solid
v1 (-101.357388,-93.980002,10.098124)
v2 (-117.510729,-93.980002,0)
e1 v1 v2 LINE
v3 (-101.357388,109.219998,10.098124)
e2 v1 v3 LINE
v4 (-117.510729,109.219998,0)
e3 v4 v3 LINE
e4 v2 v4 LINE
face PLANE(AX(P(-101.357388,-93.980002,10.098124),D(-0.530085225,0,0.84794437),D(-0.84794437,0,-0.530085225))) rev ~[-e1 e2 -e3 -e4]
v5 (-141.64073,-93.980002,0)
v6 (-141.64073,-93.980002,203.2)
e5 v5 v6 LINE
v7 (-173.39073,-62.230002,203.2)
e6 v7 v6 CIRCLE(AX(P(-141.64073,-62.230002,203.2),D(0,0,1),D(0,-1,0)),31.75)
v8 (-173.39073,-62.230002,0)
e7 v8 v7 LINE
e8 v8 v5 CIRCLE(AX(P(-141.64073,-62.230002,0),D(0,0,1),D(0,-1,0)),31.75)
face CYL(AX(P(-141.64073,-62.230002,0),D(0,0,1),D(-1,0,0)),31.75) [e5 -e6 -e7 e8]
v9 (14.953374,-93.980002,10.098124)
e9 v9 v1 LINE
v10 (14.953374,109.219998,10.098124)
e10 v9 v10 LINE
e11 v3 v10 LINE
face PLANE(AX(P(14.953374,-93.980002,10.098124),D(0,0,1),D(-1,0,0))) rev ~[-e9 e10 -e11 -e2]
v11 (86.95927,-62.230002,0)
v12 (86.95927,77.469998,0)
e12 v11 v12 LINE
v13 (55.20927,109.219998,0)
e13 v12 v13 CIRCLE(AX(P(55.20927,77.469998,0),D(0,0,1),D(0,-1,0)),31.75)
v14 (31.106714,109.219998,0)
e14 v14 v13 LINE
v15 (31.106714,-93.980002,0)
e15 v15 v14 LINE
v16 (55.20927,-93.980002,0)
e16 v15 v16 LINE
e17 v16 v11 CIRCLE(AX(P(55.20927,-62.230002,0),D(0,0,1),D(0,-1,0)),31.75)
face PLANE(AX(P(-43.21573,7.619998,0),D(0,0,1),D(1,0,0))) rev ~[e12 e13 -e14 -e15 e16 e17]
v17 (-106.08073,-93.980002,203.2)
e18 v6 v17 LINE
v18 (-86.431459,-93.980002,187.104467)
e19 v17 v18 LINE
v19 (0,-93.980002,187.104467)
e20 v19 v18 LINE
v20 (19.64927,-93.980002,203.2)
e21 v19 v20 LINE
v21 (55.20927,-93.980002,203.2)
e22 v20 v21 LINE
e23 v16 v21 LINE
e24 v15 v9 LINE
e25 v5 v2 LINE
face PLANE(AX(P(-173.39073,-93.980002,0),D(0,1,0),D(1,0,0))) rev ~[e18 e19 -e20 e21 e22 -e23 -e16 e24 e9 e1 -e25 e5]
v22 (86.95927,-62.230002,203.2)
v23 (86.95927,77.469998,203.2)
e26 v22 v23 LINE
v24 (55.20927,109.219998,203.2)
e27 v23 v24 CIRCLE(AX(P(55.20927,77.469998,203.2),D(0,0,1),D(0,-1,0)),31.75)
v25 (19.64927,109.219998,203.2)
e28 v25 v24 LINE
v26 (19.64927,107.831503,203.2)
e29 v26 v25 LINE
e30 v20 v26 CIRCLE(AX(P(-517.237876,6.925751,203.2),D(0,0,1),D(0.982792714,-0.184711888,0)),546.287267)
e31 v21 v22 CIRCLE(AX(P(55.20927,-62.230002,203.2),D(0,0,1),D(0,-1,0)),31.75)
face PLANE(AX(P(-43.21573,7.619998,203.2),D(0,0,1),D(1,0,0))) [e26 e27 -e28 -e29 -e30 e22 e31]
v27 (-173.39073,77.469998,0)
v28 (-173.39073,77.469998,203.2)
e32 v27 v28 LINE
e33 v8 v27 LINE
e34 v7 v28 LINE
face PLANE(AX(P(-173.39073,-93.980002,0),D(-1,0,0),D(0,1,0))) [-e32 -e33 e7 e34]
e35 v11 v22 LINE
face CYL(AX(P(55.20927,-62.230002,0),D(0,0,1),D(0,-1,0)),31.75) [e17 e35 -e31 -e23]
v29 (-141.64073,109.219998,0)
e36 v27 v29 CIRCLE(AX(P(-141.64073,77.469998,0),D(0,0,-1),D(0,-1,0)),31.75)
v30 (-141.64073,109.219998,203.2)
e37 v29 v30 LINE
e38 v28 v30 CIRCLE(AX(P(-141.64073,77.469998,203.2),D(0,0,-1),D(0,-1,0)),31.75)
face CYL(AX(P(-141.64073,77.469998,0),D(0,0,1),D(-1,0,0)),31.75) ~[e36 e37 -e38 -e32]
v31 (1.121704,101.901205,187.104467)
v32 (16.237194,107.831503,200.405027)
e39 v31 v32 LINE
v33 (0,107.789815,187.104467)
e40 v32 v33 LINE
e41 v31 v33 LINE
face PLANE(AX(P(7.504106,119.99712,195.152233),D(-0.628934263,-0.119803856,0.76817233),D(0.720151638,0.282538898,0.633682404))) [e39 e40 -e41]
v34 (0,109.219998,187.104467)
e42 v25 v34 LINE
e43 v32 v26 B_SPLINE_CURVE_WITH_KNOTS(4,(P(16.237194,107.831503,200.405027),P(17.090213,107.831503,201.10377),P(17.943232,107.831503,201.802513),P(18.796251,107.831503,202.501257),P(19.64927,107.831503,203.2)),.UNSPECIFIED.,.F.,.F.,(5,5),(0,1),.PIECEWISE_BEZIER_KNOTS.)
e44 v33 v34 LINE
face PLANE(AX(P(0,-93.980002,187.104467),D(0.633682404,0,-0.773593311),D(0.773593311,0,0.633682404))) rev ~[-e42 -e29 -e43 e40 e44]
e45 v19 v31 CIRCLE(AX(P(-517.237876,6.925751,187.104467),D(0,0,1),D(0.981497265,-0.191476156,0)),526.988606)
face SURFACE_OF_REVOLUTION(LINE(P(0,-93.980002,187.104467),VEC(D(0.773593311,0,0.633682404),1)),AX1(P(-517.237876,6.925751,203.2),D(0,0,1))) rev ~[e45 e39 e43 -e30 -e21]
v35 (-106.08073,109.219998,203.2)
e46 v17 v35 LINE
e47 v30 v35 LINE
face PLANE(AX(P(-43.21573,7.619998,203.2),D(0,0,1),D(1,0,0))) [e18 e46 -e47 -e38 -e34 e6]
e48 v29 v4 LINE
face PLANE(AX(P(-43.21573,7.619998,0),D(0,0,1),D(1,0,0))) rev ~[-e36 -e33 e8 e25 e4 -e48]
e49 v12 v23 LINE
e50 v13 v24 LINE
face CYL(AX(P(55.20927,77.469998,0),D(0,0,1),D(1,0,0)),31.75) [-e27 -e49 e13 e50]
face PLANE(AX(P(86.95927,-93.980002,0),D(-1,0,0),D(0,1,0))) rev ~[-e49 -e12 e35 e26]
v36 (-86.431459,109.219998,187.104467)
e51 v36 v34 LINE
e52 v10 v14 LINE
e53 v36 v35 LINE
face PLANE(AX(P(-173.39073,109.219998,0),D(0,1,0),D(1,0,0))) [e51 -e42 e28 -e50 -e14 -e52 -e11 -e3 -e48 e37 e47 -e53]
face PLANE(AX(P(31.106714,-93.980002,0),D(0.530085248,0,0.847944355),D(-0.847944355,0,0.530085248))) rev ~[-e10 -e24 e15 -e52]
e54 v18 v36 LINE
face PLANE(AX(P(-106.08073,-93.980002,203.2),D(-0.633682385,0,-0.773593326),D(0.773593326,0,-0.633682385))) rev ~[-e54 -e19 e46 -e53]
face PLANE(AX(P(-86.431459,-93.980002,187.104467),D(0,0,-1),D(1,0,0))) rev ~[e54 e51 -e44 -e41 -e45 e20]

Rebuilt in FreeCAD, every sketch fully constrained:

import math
import FreeCAD as App
import Part
import Sketcher
from FreeCAD import Vector
Q = App.Units.Quantity


def edges_at(feature, points):
    """Names of the edges that pass closest to the given points."""
    edges = feature.Shape.Edges
    near = lambda p: min(range(len(edges)), key=lambda i: edges[i].distToShape(Part.Vertex(*p))[0])
    return sorted({f"Edge{near(p) + 1}" for p in points})

doc = App.newDocument("Part")
params = doc.addObject("Spreadsheet::Sheet", "Params")
for row, (alias, value) in enumerate([
    ("sketch1_height", "8 in"),
    ("sketch1_width", "10.25 in"),
    ("pad1_length", "8 in"),
    ("fillet_radius", "1.25 in"),
    ("sketch2_length", "1 in"),
    ("sketch2_width", "4.95 in"),
    ("sketch2_length2", "0.75 in"),
    ("sketch3_length", "1 in"),
    ("sketch4_height", "8 in"),
], start=1):
    params.set(f"A{row}", alias)
    params.set(f"B{row}", "=" + value)
    params.setAlias(f"B{row}", alias)

body = doc.addObject("PartDesign::Body", "Body")

# Sketch on XY plane
sketch1 = body.newObject("Sketcher::SketchObject", "Sketch")
sketch1.AttachmentSupport = (doc.getObject("XY_Plane"), [""])
sketch1.MapMode = "FlatFace"
sketch1.addGeometry(Part.LineSegment(Vector(-173, 109, 0), Vector(-173, -94, 0)), False)
sketch1.addGeometry(Part.LineSegment(Vector(-173, -94, 0), Vector(87, -94, 0)), False)
sketch1.addGeometry(Part.LineSegment(Vector(87, -94, 0), Vector(87, 109, 0)), False)
sketch1.addGeometry(Part.LineSegment(Vector(87, 109, 0), Vector(-173, 109, 0)), False)
sketch1.addConstraint(Sketcher.Constraint("Coincident", 0, 2, 1, 1))
sketch1.addConstraint(Sketcher.Constraint("Coincident", 1, 2, 2, 1))
sketch1.addConstraint(Sketcher.Constraint("Coincident", 2, 2, 3, 1))
sketch1.addConstraint(Sketcher.Constraint("Coincident", 3, 2, 0, 1))
sketch1.addConstraint(Sketcher.Constraint("Vertical", 0))
sketch1.addConstraint(Sketcher.Constraint("Horizontal", 1))
sketch1.addConstraint(Sketcher.Constraint("Vertical", 2))
sketch1.addConstraint(Sketcher.Constraint("Horizontal", 3))
sketch1.addConstraint(Sketcher.Constraint("DistanceY", 0, 2, 0, 1, Q("8 in")))
sketch1.addConstraint(Sketcher.Constraint("DistanceX", 1, 1, 1, 2, Q("10.25 in")))
sketch1.addConstraint(Sketcher.Constraint("DistanceY", 0, 2, -1, 1, Q("3.7000001 in")))
sketch1.addConstraint(Sketcher.Constraint("DistanceX", 0, 2, -1, 1, 173.39073))
sketch1.setExpression("Constraints[8]", "Params.sketch1_height")
sketch1.setExpression("Constraints[9]", "Params.sketch1_width")
pad1 = body.newObject("PartDesign::Pad", "Pad")
pad1.Profile = sketch1
pad1.setExpression("Length", "Params.pad1_length")
doc.recompute()

fillet = body.newObject("PartDesign::Fillet", "Fillet")
fillet.Base = (pad1, edges_at(pad1, [
    (-173.391, 109.22, 101.6),
    (-173.391, -93.98, 101.6),
    (86.959, 109.22, 101.6),
    (86.959, -93.98, 101.6),
]))
fillet.setExpression("Radius", "Params.fillet_radius")

# Sketch on XZ plane
sketch2 = body.newObject("Sketcher::SketchObject", "Sketch001")
sketch2.AttachmentSupport = (doc.getObject("XZ_Plane"), [""])
sketch2.MapMode = "FlatFace"
sketch2.AttachmentOffset = App.Placement(Vector(0, 0, 3.7000001 * 25.4), App.Rotation())
sketch2.addGeometry(Part.LineSegment(Vector(20, 203, 0), Vector(-106, 203, 0)), False)
sketch2.addGeometry(Part.LineSegment(Vector(-106, 203, 0), Vector(-86, 187, 0)), False)
sketch2.addGeometry(Part.LineSegment(Vector(-86, 187, 0), Vector(0, 187, 0)), False)
sketch2.addGeometry(Part.LineSegment(Vector(0, 187, 0), Vector(20, 203, 0)), False)
sketch2.addGeometry(Part.LineSegment(Vector(-101, 10, 0), Vector(-118, 0, 0)), False)
sketch2.addGeometry(Part.LineSegment(Vector(-118, 0, 0), Vector(31, 0, 0)), False)
sketch2.addGeometry(Part.LineSegment(Vector(31, 0, 0), Vector(15, 10, 0)), False)
sketch2.addGeometry(Part.LineSegment(Vector(15, 10, 0), Vector(-101, 10, 0)), False)
sketch2.addConstraint(Sketcher.Constraint("Coincident", 0, 2, 1, 1))
sketch2.addConstraint(Sketcher.Constraint("Coincident", 1, 2, 2, 1))
sketch2.addConstraint(Sketcher.Constraint("Coincident", 2, 2, 3, 1))
sketch2.addConstraint(Sketcher.Constraint("Coincident", 3, 2, 0, 1))
sketch2.addConstraint(Sketcher.Constraint("Coincident", 4, 2, 5, 1))
sketch2.addConstraint(Sketcher.Constraint("Coincident", 5, 2, 6, 1))
sketch2.addConstraint(Sketcher.Constraint("Coincident", 6, 2, 7, 1))
sketch2.addConstraint(Sketcher.Constraint("Coincident", 7, 2, 4, 1))
sketch2.addConstraint(Sketcher.Constraint("Horizontal", 0))
sketch2.addConstraint(Sketcher.Constraint("Horizontal", 2))
sketch2.addConstraint(Sketcher.Constraint("Horizontal", 5))
sketch2.addConstraint(Sketcher.Constraint("Horizontal", 7))
sketch2.addConstraint(Sketcher.Constraint("PointOnObject", 2, 2, -2))
sketch2.addConstraint(Sketcher.Constraint("PointOnObject", 4, 2, -1))
sketch2.addConstraint(Sketcher.Constraint("Equal", 1, 3))
sketch2.addConstraint(Sketcher.Constraint("Equal", 4, 6))
sketch2.addConstraint(Sketcher.Constraint("Distance", 1, Q("1 in")))
sketch2.addConstraint(Sketcher.Constraint("DistanceY", -1, 1, 0, 2, Q("8 in")))
sketch2.addConstraint(Sketcher.Constraint("DistanceX", 0, 2, 0, 1, Q("4.95 in")))
sketch2.addConstraint(Sketcher.Constraint("DistanceX", 4, 2, 3, 2, Q("5.4 in")))
sketch2.addConstraint(Sketcher.Constraint("Distance", 4, Q("0.75 in")))
sketch2.addConstraint(Sketcher.Constraint("DistanceX", 2, 1, 2, 2, 86.431459))
sketch2.addConstraint(Sketcher.Constraint("DistanceX", 7, 2, 7, 1, 116.310762))
sketch2.addConstraint(Sketcher.Constraint("DistanceX", 7, 2, 5, 2, 132.464102))
sketch2.setExpression("Constraints[16]", "Params.sketch2_length")
sketch2.setExpression("Constraints[18]", "Params.sketch2_width")
sketch2.setExpression("Constraints[20]", "Params.sketch2_length2")
pocket1 = body.newObject("PartDesign::Pocket", "Pocket")
pocket1.Profile = sketch2
pocket1.Type = "ThroughAll"

# Sketch on XZ plane
sketch3 = body.newObject("Sketcher::SketchObject", "Sketch002")
sketch3.AttachmentSupport = (doc.getObject("XZ_Plane"), [""])
sketch3.MapMode = "FlatFace"
sketch3.AttachmentOffset = App.Placement(Vector(0, 0, 3.7000001 * 25.4), App.Rotation())
sketch3.addGeometry(Part.LineSegment(Vector(0, 187, 0), Vector(20, 203, 0)), False)
sketch3.addGeometry(Part.LineSegment(Vector(20, 203, 0), Vector(0, 203, 0)), False)
sketch3.addGeometry(Part.LineSegment(Vector(0, 203, 0), Vector(-25, 203, 0)), False)
sketch3.addGeometry(Part.LineSegment(Vector(-25, 203, 0), Vector(-25, 187, 0)), False)
sketch3.addGeometry(Part.LineSegment(Vector(-25, 187, 0), Vector(0, 187, 0)), False)
sketch3.addConstraint(Sketcher.Constraint("Coincident", 0, 2, 1, 1))
sketch3.addConstraint(Sketcher.Constraint("Coincident", 1, 2, 2, 1))
sketch3.addConstraint(Sketcher.Constraint("Coincident", 2, 2, 3, 1))
sketch3.addConstraint(Sketcher.Constraint("Coincident", 3, 2, 4, 1))
sketch3.addConstraint(Sketcher.Constraint("Coincident", 4, 2, 0, 1))
sketch3.addConstraint(Sketcher.Constraint("Horizontal", 1))
sketch3.addConstraint(Sketcher.Constraint("Vertical", 3))
sketch3.addConstraint(Sketcher.Constraint("Horizontal", 4))
sketch3.addConstraint(Sketcher.Constraint("PointOnObject", 1, 2, -2))
sketch3.addConstraint(Sketcher.Constraint("PointOnObject", 4, 2, -2))
sketch3.addConstraint(Sketcher.Constraint("Distance", 0, Q("1 in")))
sketch3.addConstraint(Sketcher.Constraint("DistanceY", -1, 1, 0, 2, Q("8 in")))
sketch3.addConstraint(Sketcher.Constraint("DistanceX", 1, 2, 1, 1, 19.64927))
sketch3.addConstraint(Sketcher.Constraint("DistanceX", 4, 1, 4, 2, 25.094712))
sketch3.addConstraint(Sketcher.Constraint("DistanceY", 3, 2, 3, 1, 16.226422))
sketch3.setExpression("Constraints[10]", "Params.sketch3_length")

# Sketch on XY plane
sketch4 = body.newObject("Sketcher::SketchObject", "Sketch003")
sketch4.AttachmentSupport = (doc.getObject("XY_Plane"), [""])
sketch4.MapMode = "FlatFace"
sketch4.AttachmentOffset = App.Placement(Vector(0, 0, 8 * 25.4), App.Rotation())
sketch4.addGeometry(Part.ArcOfCircle(Part.Circle(Vector(-517, 7, 0), Vector(0, 0, 1), 547), math.radians(-11), math.radians(11)), False)
sketch4.addGeometry(Part.LineSegment(Vector(20, 109, 0), Vector(14, 138, 0)), False)
sketch4.addConstraint(Sketcher.Constraint("Tangent", 0, 2, 1, 1))
sketch4.addConstraint(Sketcher.Constraint("DistanceY", 0, 1, 0, 2, Q("8 in")))
sketch4.addConstraint(Sketcher.Constraint("Radius", 0, 546.670198))
sketch4.addConstraint(Sketcher.Constraint("DistanceX", -1, 1, 0, 1, 20.038901))
sketch4.addConstraint(Sketcher.Constraint("DistanceY", -1, 1, 0, 3, 6.925751))
sketch4.addConstraint(Sketcher.Constraint("DistanceX", -1, 1, 0, 2, 19.77627))
sketch4.addConstraint(Sketcher.Constraint("DistanceY", -1, 1, 1, 2, 138.23534))
sketch4.setExpression("Constraints[1]", "Params.sketch4_height")
doc.recompute()

subtractivepipe = body.newObject("PartDesign::SubtractivePipe", "SubtractivePipe")
subtractivepipe.Profile = sketch3
subtractivepipe.Spine = (sketch4, ["Edge1", "Edge2"])

doc.recompute()
